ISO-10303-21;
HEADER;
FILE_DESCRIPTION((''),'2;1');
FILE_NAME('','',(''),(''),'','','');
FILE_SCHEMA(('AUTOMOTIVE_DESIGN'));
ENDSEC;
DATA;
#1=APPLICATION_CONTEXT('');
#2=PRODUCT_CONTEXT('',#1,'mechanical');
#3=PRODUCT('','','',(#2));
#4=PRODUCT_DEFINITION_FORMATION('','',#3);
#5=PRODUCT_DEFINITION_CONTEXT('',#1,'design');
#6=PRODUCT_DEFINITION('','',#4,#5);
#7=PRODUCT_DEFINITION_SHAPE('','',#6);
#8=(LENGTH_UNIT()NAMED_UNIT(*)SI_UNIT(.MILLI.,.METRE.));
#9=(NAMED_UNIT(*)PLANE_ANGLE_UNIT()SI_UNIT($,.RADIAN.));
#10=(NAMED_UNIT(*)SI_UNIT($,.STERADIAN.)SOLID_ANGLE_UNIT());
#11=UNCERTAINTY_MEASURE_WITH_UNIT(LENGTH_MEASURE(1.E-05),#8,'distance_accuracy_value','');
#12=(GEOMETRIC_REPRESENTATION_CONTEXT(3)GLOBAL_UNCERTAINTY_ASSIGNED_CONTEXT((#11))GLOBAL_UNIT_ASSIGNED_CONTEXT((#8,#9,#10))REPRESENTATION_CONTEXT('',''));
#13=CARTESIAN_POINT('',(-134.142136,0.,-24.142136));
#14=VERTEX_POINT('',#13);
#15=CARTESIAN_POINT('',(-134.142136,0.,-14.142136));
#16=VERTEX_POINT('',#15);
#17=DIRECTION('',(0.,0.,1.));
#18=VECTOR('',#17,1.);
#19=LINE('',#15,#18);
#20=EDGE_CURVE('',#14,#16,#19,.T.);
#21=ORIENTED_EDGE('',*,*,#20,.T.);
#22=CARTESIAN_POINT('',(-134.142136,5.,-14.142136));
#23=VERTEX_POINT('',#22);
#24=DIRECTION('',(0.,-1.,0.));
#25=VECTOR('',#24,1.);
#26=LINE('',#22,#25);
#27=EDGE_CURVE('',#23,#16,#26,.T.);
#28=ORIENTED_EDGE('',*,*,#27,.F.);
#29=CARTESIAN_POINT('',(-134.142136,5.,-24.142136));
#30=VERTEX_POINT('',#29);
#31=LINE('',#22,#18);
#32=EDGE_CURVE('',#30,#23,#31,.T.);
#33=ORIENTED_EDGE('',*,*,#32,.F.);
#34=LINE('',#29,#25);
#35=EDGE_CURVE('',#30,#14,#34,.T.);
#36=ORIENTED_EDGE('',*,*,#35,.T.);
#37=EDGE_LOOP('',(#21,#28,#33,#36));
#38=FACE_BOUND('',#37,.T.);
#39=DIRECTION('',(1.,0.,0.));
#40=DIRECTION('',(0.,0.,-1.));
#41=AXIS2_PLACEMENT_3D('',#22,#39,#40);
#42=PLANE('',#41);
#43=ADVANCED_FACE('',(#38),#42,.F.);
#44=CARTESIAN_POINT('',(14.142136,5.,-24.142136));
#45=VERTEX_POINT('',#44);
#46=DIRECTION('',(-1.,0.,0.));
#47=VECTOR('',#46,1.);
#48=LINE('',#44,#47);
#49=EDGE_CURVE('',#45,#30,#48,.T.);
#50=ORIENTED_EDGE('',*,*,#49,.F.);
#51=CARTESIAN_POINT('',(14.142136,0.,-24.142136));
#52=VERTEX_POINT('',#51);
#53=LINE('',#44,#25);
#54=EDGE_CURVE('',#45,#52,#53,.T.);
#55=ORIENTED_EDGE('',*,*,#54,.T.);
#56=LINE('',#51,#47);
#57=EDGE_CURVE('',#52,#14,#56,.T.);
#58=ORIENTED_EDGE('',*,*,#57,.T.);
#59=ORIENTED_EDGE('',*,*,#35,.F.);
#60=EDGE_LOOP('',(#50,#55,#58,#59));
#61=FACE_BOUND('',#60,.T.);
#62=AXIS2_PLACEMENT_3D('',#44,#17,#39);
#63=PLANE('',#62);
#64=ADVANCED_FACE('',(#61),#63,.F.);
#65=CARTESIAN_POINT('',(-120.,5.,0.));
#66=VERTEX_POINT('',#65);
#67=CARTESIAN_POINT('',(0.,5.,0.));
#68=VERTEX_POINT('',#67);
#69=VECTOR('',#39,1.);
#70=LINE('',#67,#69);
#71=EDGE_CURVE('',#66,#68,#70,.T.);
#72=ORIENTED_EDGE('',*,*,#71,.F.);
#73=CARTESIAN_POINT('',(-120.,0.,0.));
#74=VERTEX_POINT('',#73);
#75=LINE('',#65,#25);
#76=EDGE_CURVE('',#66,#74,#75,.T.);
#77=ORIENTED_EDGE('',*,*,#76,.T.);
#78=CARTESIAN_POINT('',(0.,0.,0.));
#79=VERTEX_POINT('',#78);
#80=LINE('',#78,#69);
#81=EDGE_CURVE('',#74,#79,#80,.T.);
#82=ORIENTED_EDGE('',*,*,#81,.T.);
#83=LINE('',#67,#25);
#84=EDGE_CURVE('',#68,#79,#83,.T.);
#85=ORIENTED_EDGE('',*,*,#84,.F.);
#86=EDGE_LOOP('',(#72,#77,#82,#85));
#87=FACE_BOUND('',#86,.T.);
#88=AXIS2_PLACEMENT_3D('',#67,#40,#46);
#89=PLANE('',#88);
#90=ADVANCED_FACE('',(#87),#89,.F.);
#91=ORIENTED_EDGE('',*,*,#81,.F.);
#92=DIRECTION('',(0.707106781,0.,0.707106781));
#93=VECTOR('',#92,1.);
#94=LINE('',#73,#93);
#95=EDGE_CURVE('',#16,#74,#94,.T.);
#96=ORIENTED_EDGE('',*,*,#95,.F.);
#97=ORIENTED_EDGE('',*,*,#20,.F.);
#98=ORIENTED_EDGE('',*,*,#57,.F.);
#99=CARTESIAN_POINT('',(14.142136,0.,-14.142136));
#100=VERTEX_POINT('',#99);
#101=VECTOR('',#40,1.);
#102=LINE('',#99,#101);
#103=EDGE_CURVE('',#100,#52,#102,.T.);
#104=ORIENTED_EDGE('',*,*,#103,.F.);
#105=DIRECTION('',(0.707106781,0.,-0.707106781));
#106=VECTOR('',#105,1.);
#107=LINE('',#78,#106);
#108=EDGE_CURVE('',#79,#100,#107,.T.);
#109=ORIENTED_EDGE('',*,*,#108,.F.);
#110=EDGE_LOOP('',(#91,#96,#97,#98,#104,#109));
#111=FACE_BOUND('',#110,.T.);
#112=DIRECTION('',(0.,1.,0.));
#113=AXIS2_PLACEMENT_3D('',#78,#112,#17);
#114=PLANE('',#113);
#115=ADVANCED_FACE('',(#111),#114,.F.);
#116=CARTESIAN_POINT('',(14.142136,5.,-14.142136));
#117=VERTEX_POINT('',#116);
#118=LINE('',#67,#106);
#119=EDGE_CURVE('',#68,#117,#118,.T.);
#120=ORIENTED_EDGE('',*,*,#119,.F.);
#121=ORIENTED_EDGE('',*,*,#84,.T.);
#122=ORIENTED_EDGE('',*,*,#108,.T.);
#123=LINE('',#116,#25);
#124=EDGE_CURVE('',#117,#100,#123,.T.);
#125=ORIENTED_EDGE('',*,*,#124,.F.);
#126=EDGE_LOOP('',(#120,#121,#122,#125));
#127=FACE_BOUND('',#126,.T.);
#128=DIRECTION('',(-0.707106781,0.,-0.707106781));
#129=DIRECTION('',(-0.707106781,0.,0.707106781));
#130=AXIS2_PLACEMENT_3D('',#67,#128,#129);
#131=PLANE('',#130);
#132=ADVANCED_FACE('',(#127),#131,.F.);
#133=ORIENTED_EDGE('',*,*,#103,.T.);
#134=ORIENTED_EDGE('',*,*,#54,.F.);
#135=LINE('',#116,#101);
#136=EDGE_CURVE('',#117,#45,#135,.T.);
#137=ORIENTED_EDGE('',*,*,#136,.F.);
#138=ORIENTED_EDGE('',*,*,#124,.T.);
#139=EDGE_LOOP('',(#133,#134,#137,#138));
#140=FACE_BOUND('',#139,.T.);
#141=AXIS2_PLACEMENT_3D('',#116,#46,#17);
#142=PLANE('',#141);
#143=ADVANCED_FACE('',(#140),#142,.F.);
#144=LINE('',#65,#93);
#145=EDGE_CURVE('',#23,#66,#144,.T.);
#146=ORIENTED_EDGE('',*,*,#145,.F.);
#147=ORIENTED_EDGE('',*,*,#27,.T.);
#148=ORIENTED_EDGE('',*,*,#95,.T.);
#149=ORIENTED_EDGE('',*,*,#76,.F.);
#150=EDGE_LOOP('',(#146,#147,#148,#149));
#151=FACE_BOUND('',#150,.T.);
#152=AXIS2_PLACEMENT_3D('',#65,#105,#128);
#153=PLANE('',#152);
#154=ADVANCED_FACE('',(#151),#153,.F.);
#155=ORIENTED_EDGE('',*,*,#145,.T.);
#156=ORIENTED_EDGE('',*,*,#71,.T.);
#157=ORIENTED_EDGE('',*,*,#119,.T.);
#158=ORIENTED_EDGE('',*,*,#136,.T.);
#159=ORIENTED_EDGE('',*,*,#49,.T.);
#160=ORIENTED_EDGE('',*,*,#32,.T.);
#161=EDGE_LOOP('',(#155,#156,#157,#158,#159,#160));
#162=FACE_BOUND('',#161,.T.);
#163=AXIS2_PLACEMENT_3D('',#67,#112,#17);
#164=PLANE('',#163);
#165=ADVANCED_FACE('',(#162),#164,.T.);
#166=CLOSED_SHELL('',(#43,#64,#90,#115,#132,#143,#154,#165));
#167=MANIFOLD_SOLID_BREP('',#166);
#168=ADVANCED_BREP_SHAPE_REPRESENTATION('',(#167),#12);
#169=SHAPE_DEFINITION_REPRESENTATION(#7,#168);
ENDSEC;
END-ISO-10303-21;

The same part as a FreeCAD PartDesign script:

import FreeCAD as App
import Part
import Sketcher

V = App.Vector
Q = App.Units.Quantity


def add_polygon(sketch, points):
    """Adds a closed chain of lines whose ends are joined by coincident constraints."""
    first, n = sketch.GeometryCount, len(points)
    for a, b in zip(points, points[1:] + points[:1]):
        sketch.addGeometry(Part.LineSegment(App.Vector(*a, 0), App.Vector(*b, 0)), False)
    for i in range(n):
        sketch.addConstraint(Sketcher.Constraint("Coincident", first + i, 2, first + (i + 1) % n, 1))

doc = App.newDocument("Part")
params = doc.addObject("Spreadsheet::Sheet", "Params")
for row, (alias, value) in enumerate([
    ("sketch1_width", "120 mm"),
    ("sketch1_height", "10 mm"),
    ("sketch1_length", "20 mm"),
    ("pad1_length", "5 mm"),
], start=1):
    params.set(f"A{row}", alias)
    params.set(f"B{row}", "=" + value)
    params.setAlias(f"B{row}", alias)

body = doc.addObject("PartDesign::Body", "Body")

# Sketch on XZ plane
sketch1 = body.newObject("Sketcher::SketchObject", "Sketch")
sketch1.AttachmentSupport = (doc.getObject("XZ_Plane"), [""])
sketch1.MapMode = "FlatFace"
add_polygon(sketch1, [(-120, 0), (0, 0), (14, -14), (14, -24), (-134, -24), (-134, -14)])  # lines 0-5
sketch1.addConstraint(Sketcher.Constraint("Horizontal", 0))
sketch1.addConstraint(Sketcher.Constraint("Vertical", 2))
sketch1.addConstraint(Sketcher.Constraint("Horizontal", 3))
sketch1.addConstraint(Sketcher.Constraint("Vertical", 4))
sketch1.addConstraint(Sketcher.Constraint("Coincident", 0, 2, -1, 1))
sketch1.addConstraint(Sketcher.Constraint("Perpendicular", 1, 5))
sketch1.addConstraint(Sketcher.Constraint("Horizontal", 1, 2, 4, 2))
sketch1.addConstraint(Sketcher.Constraint("Equal", 1, 5))
sketch1.addConstraint(Sketcher.Constraint("DistanceX", 0, 1, 0, 2, Q("120 mm")))
sketch1.addConstraint(Sketcher.Constraint("DistanceY", 2, 2, 2, 1, Q("10 mm")))
sketch1.addConstraint(Sketcher.Constraint("Distance", 1, Q("20 mm")))
sketch1.setExpression("Constraints[14]", "Params.sketch1_width")
sketch1.setExpression("Constraints[15]", "Params.sketch1_height")
sketch1.setExpression("Constraints[16]", "Params.sketch1_length")
pad1 = body.newObject("PartDesign::Pad", "Pad")
pad1.Profile = sketch1
pad1.setExpression("Length", "Params.pad1_length")
pad1.Reversed = True

doc.recompute()
